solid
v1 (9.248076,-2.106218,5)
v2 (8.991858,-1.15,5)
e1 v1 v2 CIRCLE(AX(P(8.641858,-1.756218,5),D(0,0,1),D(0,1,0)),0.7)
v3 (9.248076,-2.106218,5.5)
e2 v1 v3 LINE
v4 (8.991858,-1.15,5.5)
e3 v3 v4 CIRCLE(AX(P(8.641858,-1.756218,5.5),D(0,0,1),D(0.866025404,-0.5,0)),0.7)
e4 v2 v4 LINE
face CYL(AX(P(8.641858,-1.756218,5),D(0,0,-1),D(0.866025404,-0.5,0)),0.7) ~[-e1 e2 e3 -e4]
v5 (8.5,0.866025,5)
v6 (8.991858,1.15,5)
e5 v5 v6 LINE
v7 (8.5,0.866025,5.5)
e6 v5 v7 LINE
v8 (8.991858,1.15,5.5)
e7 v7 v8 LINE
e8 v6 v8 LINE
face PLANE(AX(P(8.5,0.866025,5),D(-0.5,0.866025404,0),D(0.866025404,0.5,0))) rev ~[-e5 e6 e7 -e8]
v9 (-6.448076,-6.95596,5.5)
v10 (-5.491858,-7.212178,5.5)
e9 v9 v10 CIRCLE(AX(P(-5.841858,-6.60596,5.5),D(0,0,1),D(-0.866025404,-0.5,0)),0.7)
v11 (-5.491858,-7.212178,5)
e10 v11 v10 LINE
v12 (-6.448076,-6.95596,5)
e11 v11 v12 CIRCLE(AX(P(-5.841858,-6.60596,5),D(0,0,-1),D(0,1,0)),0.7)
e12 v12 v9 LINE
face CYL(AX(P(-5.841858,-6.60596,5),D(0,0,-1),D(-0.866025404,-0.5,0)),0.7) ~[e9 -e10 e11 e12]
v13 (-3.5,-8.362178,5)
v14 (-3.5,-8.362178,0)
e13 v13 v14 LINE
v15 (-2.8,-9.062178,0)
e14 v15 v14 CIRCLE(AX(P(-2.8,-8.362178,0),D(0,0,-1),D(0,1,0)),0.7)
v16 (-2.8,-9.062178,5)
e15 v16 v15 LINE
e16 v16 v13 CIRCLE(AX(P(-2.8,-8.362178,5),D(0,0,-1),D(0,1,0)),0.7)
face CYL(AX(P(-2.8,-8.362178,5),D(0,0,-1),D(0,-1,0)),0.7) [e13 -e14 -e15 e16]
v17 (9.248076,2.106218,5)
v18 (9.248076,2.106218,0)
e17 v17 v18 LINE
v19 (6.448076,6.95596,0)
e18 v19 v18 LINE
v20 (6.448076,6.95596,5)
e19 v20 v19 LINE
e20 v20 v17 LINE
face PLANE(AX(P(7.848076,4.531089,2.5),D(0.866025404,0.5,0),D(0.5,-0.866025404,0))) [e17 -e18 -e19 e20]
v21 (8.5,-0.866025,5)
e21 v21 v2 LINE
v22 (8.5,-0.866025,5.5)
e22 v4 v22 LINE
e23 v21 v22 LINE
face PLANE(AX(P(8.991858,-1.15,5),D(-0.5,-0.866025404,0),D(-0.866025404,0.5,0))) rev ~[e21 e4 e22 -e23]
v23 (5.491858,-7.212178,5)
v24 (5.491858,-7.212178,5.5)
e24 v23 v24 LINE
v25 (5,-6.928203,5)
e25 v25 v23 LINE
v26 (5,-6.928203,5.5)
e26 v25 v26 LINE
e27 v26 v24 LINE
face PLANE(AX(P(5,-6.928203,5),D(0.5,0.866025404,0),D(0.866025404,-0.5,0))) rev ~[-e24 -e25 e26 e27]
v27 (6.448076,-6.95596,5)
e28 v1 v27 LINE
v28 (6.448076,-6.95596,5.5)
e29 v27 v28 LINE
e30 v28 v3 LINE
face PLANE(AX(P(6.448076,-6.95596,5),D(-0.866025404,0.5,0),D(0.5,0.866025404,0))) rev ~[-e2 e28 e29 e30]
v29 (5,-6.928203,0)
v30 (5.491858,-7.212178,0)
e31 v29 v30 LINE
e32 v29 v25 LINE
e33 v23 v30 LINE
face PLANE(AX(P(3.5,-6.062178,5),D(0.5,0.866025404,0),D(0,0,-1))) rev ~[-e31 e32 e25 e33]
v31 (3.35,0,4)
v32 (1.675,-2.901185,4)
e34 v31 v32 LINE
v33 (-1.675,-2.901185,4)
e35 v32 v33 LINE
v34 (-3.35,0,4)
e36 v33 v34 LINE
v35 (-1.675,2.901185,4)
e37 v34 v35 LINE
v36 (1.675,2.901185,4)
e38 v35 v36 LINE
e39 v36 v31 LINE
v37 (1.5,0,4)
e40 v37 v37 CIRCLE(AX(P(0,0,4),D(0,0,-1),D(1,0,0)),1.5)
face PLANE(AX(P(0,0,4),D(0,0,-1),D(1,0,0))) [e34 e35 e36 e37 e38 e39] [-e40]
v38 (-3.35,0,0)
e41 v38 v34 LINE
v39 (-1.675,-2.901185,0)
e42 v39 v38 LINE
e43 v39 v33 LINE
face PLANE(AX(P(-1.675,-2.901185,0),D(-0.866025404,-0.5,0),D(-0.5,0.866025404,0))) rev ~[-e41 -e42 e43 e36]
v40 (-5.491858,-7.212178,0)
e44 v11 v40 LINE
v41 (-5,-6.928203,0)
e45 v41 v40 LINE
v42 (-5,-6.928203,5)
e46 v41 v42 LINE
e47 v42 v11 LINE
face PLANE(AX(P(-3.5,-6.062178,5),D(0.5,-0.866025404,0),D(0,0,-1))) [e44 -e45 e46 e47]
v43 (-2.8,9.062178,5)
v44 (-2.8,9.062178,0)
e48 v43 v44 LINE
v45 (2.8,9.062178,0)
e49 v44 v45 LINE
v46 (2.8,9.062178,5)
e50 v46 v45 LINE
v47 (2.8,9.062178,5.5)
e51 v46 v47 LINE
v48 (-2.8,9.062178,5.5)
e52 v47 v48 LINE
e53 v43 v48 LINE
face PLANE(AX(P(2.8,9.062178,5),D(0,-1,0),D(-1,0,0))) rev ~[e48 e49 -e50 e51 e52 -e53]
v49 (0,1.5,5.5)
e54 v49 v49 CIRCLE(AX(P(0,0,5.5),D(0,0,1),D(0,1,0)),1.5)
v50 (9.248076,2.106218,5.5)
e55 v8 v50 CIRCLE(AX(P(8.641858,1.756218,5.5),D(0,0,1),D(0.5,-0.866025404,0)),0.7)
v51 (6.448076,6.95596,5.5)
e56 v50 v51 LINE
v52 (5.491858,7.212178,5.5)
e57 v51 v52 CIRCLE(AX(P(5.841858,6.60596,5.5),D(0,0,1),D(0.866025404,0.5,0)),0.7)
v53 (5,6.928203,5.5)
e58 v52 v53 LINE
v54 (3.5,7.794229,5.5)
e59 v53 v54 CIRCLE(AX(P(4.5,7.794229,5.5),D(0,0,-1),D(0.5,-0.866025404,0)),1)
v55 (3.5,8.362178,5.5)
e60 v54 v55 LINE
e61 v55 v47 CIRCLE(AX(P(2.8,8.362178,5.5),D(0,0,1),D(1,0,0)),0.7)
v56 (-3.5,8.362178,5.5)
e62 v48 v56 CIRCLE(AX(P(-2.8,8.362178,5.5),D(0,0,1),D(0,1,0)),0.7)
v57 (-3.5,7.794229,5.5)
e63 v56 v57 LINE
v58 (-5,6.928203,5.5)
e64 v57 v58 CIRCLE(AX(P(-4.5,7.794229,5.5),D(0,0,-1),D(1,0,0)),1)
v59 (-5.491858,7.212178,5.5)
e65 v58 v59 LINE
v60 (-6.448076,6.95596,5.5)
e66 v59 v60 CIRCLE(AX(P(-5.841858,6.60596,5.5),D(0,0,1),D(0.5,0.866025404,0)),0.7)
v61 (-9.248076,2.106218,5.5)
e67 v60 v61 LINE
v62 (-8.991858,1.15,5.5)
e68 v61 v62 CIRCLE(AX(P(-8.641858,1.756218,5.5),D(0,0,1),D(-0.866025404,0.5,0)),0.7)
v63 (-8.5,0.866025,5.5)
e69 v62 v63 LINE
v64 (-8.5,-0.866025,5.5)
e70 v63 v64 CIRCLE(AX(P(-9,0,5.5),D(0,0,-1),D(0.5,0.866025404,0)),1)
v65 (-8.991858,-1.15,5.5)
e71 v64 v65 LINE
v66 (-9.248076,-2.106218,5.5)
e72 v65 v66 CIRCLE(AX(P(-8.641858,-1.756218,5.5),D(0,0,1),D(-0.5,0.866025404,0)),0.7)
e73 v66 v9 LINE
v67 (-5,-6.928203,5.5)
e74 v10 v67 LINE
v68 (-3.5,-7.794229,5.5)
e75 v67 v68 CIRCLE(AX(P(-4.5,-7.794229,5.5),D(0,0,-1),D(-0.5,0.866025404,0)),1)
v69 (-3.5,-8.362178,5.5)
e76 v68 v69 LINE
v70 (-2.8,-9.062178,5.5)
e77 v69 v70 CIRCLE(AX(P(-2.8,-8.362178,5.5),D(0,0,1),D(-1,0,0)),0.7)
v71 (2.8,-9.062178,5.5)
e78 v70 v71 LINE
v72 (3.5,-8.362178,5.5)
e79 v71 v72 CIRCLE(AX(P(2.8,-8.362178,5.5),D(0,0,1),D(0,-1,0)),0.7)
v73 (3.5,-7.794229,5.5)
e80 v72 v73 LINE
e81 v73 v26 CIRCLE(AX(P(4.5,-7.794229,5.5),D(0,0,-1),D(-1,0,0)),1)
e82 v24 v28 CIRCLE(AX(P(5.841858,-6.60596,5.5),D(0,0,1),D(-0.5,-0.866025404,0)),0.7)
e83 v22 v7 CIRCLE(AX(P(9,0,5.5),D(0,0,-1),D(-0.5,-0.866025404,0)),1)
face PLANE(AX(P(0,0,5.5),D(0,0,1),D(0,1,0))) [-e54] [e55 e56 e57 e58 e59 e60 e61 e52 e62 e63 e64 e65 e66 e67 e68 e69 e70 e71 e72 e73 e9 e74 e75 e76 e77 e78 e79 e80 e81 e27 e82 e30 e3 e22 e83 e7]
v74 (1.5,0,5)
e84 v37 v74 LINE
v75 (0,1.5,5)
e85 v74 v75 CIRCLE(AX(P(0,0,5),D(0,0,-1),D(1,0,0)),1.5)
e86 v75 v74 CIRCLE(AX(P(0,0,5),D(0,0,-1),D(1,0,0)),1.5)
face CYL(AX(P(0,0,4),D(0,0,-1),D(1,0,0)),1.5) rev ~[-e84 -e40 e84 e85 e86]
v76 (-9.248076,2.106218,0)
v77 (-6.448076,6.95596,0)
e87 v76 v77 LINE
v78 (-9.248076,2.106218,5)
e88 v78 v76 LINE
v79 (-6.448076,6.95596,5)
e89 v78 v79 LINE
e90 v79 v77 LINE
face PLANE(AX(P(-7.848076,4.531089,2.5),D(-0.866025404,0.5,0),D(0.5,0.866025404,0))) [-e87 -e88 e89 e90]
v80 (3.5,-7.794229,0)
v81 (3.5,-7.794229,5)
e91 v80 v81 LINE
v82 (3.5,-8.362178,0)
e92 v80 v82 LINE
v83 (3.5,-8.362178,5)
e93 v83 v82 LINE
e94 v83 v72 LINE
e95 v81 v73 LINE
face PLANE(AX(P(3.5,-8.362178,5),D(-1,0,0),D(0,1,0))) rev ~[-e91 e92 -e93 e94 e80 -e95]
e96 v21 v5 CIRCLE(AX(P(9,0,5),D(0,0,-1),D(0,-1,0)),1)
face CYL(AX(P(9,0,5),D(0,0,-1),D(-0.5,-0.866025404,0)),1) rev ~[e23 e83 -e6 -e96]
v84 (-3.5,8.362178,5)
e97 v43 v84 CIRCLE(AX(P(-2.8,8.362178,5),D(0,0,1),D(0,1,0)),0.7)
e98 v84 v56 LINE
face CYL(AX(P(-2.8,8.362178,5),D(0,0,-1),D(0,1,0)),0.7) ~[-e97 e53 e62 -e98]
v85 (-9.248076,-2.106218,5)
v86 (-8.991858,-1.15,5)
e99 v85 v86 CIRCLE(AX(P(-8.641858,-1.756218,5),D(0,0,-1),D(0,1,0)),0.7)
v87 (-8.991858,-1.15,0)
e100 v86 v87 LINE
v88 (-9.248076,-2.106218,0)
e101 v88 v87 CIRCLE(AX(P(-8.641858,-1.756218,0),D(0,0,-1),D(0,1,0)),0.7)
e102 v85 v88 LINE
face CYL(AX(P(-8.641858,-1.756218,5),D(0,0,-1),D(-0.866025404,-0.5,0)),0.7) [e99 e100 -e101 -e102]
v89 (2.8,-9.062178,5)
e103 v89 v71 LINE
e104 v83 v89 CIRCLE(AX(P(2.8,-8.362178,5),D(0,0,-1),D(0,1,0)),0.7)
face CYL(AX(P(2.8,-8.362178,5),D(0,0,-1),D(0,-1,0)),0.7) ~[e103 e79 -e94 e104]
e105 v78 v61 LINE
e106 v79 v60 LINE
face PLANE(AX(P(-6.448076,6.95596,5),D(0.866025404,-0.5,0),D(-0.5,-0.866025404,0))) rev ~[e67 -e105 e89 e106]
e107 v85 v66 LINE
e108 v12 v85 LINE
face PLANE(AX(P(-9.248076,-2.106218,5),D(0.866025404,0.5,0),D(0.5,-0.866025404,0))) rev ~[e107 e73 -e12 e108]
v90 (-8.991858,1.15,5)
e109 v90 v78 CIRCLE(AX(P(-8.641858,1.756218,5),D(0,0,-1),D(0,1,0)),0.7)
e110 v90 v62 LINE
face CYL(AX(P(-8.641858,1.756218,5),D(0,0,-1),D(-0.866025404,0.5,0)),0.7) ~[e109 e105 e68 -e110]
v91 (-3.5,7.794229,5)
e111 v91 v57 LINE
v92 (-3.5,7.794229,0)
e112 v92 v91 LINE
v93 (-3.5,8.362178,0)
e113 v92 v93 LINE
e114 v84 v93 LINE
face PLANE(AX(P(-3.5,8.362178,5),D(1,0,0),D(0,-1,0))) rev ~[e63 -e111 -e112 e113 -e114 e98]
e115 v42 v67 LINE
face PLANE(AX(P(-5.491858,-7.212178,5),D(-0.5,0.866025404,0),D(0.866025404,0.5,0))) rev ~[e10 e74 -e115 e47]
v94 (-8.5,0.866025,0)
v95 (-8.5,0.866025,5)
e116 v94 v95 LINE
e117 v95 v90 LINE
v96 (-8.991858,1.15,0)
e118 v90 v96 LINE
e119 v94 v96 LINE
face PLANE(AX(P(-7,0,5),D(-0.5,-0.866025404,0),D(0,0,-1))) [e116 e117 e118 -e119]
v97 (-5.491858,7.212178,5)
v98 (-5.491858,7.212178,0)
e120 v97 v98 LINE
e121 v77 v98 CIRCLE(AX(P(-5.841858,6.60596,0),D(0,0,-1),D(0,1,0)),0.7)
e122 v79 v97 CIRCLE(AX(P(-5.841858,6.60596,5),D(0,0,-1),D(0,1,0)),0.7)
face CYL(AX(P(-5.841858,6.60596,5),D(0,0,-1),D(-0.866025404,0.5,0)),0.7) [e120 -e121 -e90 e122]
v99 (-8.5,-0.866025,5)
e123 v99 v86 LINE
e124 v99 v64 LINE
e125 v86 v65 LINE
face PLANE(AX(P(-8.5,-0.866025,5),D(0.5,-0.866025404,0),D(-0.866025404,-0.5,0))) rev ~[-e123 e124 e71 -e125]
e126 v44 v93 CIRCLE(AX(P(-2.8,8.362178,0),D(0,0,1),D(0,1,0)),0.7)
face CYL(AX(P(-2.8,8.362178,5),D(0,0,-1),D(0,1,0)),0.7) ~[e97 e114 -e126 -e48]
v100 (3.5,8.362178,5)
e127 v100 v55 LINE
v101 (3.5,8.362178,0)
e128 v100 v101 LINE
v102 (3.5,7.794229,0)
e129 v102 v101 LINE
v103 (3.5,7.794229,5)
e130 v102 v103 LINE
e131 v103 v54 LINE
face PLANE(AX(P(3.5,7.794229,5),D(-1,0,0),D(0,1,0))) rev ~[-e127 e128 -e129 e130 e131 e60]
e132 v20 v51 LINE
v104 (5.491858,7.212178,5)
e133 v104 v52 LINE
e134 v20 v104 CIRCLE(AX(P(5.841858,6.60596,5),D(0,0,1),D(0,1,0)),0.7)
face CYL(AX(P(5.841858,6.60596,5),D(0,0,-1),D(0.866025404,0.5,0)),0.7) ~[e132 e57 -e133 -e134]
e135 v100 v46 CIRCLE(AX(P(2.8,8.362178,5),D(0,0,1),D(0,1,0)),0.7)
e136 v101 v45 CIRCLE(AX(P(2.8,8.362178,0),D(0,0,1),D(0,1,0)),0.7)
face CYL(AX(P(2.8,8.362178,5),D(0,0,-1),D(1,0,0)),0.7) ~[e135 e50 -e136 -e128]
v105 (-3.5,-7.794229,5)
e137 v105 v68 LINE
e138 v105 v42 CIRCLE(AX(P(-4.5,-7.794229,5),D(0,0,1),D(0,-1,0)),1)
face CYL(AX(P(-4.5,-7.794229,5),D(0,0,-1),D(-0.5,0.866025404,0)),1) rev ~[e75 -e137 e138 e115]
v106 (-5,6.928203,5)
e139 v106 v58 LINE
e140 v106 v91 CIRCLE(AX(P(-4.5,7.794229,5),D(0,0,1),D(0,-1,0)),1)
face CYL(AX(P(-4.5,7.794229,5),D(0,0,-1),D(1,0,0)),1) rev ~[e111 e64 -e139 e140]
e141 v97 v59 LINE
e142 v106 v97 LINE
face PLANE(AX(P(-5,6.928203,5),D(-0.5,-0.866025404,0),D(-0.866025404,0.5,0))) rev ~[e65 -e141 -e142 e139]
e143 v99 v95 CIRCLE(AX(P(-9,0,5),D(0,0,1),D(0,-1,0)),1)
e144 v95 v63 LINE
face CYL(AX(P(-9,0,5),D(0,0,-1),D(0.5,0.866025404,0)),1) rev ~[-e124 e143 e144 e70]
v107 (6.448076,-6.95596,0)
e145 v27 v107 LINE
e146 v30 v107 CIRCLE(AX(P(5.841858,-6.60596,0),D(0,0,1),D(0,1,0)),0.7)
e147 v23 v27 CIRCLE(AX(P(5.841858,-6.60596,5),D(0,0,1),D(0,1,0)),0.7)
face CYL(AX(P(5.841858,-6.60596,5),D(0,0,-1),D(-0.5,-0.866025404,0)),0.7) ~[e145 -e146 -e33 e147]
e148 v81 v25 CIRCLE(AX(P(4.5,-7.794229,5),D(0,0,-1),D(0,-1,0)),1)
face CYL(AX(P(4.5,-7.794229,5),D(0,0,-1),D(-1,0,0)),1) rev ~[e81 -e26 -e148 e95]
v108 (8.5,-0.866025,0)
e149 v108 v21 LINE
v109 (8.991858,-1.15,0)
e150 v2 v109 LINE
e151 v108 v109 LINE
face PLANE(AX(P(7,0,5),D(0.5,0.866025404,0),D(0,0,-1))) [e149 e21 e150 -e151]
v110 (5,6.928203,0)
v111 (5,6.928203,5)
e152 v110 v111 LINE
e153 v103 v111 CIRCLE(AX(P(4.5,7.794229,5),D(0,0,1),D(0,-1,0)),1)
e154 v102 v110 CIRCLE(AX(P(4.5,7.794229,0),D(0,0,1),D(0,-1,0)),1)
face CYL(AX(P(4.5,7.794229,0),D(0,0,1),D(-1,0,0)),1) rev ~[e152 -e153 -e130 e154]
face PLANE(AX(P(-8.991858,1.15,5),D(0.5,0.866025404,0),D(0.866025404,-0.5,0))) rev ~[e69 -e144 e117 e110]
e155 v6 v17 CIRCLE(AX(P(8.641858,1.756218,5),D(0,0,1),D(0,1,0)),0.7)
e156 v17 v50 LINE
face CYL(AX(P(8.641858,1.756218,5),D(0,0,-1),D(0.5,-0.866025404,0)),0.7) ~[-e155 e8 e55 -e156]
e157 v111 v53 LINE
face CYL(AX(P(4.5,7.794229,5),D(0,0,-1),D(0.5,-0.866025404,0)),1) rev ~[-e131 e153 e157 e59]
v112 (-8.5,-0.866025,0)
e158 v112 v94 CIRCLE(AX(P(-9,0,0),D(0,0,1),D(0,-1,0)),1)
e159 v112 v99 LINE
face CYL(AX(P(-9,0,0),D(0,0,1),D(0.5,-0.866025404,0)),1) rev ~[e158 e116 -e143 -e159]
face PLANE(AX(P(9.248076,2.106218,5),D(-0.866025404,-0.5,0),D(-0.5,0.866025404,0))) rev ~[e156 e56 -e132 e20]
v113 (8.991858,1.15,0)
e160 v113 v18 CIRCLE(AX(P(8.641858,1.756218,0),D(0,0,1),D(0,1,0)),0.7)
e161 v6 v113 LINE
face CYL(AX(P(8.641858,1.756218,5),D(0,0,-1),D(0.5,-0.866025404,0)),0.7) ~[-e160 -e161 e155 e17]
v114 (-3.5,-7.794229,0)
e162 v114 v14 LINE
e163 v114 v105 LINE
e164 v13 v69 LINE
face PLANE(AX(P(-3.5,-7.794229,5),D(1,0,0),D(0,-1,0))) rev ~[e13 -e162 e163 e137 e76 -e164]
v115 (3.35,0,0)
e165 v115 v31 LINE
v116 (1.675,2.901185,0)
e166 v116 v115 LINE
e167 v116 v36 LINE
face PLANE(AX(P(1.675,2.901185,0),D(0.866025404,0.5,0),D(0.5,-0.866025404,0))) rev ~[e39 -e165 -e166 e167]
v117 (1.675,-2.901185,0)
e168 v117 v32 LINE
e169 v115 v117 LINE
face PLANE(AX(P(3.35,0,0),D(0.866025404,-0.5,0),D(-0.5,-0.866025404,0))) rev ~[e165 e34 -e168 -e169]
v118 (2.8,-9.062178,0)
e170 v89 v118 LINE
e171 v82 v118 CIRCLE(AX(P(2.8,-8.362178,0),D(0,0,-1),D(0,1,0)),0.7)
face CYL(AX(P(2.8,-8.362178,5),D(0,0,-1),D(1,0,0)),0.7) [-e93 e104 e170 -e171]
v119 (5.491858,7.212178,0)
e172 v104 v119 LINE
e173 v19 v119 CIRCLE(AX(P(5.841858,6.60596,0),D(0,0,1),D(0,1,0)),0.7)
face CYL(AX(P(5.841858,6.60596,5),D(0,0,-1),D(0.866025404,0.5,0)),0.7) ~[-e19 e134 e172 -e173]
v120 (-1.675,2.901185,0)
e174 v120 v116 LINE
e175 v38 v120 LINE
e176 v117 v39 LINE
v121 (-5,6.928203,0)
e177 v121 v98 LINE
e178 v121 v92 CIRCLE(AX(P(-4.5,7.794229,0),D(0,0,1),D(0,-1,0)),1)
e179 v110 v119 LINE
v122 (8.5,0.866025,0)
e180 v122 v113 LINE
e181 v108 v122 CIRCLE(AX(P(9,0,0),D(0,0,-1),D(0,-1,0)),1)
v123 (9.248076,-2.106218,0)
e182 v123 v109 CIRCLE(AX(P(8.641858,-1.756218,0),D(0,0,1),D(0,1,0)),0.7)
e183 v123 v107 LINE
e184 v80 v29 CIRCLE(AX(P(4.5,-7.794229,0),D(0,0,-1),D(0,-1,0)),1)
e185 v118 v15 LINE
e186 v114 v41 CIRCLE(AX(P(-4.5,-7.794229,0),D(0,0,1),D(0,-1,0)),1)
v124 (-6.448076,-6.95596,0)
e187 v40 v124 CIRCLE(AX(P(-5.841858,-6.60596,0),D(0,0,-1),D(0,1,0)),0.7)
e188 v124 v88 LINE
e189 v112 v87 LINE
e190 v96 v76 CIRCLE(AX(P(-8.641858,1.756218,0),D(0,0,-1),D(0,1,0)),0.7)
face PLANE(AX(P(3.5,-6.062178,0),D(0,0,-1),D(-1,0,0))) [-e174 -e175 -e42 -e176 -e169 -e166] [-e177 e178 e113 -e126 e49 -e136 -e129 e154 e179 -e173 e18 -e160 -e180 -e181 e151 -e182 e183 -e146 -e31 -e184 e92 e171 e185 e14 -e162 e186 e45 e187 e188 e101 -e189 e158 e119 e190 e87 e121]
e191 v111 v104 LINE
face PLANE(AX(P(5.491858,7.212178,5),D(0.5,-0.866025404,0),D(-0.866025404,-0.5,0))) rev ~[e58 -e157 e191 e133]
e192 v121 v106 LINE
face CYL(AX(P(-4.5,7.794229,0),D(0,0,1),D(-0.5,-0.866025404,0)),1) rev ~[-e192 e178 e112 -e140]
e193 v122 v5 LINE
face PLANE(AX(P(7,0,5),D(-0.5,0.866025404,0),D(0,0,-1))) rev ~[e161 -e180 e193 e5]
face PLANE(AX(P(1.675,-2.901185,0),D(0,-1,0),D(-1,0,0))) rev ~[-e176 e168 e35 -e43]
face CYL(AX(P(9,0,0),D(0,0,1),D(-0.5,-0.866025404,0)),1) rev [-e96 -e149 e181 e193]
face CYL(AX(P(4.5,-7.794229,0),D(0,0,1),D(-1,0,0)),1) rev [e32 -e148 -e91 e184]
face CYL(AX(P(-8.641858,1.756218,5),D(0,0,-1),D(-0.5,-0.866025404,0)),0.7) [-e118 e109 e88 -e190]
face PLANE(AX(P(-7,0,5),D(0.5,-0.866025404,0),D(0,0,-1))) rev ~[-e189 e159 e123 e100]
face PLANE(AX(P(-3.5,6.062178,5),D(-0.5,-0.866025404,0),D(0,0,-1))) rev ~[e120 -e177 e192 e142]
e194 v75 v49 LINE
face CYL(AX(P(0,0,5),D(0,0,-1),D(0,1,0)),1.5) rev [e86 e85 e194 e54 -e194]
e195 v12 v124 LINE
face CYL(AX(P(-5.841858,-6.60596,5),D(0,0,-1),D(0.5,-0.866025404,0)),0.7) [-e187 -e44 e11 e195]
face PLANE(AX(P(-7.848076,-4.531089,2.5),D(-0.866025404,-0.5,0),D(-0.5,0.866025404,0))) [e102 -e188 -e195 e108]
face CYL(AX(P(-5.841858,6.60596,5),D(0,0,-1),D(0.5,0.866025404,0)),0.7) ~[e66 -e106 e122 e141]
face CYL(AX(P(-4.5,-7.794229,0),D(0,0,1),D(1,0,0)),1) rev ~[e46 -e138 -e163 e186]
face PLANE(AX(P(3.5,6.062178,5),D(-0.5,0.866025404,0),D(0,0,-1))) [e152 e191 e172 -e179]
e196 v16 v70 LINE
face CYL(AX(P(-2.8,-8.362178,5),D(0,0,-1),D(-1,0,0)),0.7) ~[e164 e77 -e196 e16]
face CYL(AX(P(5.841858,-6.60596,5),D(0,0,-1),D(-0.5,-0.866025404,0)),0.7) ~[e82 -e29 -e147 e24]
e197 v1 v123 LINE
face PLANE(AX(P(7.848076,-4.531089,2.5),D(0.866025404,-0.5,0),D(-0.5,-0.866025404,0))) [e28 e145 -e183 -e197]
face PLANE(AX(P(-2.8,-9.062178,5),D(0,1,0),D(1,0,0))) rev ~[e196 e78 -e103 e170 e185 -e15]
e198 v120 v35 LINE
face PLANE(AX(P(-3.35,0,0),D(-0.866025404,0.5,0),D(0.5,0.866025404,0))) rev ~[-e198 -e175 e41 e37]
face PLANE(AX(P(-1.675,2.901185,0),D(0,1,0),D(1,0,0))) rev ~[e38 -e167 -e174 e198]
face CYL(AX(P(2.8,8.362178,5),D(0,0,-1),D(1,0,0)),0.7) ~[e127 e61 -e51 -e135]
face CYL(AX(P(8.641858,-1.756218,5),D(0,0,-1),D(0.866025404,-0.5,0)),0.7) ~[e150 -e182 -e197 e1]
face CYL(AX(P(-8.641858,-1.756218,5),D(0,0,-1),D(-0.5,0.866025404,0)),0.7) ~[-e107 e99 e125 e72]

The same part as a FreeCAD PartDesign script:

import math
import FreeCAD as App
import Part
import Sketcher

V = App.Vector
Q = App.Units.Quantity


def edges_at(feature, points):
    """Names of the edges that pass closest to the given points."""
    edges = feature.Shape.Edges
    near = lambda p: min(range(len(edges)), key=lambda i: edges[i].distToShape(Part.Vertex(*p))[0])
    return sorted({f"Edge{near(p) + 1}" for p in points})

doc = App.newDocument("Part")
body = doc.addObject("PartDesign::Body", "Body")

# Sketch on XY plane
sketch1 = body.newObject("Sketcher::SketchObject", "Sketch")
sketch1.AttachmentSupport = (doc.getObject("XY_Plane"), [""])
sketch1.MapMode = "FlatFace"
sketch1.addGeometry(Part.LineSegment(V(7, 0, 0), V(4, 6, 0)), False)
sketch1.addGeometry(Part.LineSegment(V(4, 6, 0), V(-4, 6, 0)), False)
sketch1.addGeometry(Part.LineSegment(V(-4, 6, 0), V(-7, 0, 0)), False)
sketch1.addGeometry(Part.LineSegment(V(-7, 0, 0), V(-4, -6, 0)), False)
sketch1.addGeometry(Part.LineSegment(V(-4, -6, 0), V(4, -6, 0)), False)
sketch1.addGeometry(Part.LineSegment(V(4, -6, 0), V(7, 0, 0)), False)
sketch1.addConstraint(Sketcher.Constraint("Coincident", 0, 2, 1, 1))
sketch1.addConstraint(Sketcher.Constraint("Coincident", 1, 2, 2, 1))
sketch1.addConstraint(Sketcher.Constraint("Coincident", 2, 2, 3, 1))
sketch1.addConstraint(Sketcher.Constraint("Coincident", 3, 2, 4, 1))
sketch1.addConstraint(Sketcher.Constraint("Coincident", 4, 2, 5, 1))
sketch1.addConstraint(Sketcher.Constraint("Coincident", 5, 2, 0, 1))
sketch1.addConstraint(Sketcher.Constraint("Horizontal", 1))
sketch1.addConstraint(Sketcher.Constraint("Horizontal", 4))
sketch1.addConstraint(Sketcher.Constraint("Symmetric", 0, 2, 3, 2, -1, 1))
sketch1.addConstraint(Sketcher.Constraint("Symmetric", 2, 2, 5, 2, -1, 1))
sketch1.addConstraint(Sketcher.Constraint("PointOnObject", 2, 2, -1))
sketch1.addConstraint(Sketcher.Constraint("Parallel", 2, 5))
sketch1.addConstraint(Sketcher.Constraint("Vertical", 1, 2, 3, 2))
sketch1.addConstraint(Sketcher.Constraint("DistanceX", 1, 2, 1, 1, 7.0))
sketch1.addConstraint(Sketcher.Constraint("Angle", 0, Q("120 deg")))
sketch1.addConstraint(Sketcher.Constraint("Distance", 0, 7.0))
pad1 = body.newObject("PartDesign::Pad", "Pad")
pad1.Profile = sketch1
pad1.Length = 5

# Sketch on XY plane
sketch2 = body.newObject("Sketcher::SketchObject", "Sketch001")
sketch2.AttachmentSupport = (doc.getObject("XY_Plane"), [""])
sketch2.MapMode = "FlatFace"
sketch2.addGeometry(Part.LineSegment(V(3.4, 0, 0), V(1.7, -2.9, 0)), False)
sketch2.addGeometry(Part.LineSegment(V(1.7, -2.9, 0), V(-1.7, -2.9, 0)), False)
sketch2.addGeometry(Part.LineSegment(V(-1.7, -2.9, 0), V(-3.4, 0, 0)), False)
sketch2.addGeometry(Part.LineSegment(V(-3.4, 0, 0), V(-1.7, 2.9, 0)), False)
sketch2.addGeometry(Part.LineSegment(V(-1.7, 2.9, 0), V(1.7, 2.9, 0)), False)
sketch2.addGeometry(Part.LineSegment(V(1.7, 2.9, 0), V(3.4, 0, 0)), False)
sketch2.addConstraint(Sketcher.Constraint("Coincident", 0, 2, 1, 1))
sketch2.addConstraint(Sketcher.Constraint("Coincident", 1, 2, 2, 1))
sketch2.addConstraint(Sketcher.Constraint("Coincident", 2, 2, 3, 1))
sketch2.addConstraint(Sketcher.Constraint("Coincident", 3, 2, 4, 1))
sketch2.addConstraint(Sketcher.Constraint("Coincident", 4, 2, 5, 1))
sketch2.addConstraint(Sketcher.Constraint("Coincident", 5, 2, 0, 1))
sketch2.addConstraint(Sketcher.Constraint("Horizontal", 1))
sketch2.addConstraint(Sketcher.Constraint("Horizontal", 4))
sketch2.addConstraint(Sketcher.Constraint("Symmetric", 0, 2, 3, 2, -1, 1))
sketch2.addConstraint(Sketcher.Constraint("Symmetric", 2, 2, 5, 2, -1, 1))
sketch2.addConstraint(Sketcher.Constraint("PointOnObject", 2, 2, -1))
sketch2.addConstraint(Sketcher.Constraint("Parallel", 2, 5))
sketch2.addConstraint(Sketcher.Constraint("Vertical", 1, 2, 3, 2))
sketch2.addConstraint(Sketcher.Constraint("Angle", 0, Q("-120 deg")))
sketch2.addConstraint(Sketcher.Constraint("DistanceX", 1, 2, 1, 1, 3.35))
sketch2.addConstraint(Sketcher.Constraint("DistanceX", 2, 2, 5, 2, 6.7))
pocket1 = body.newObject("PartDesign::Pocket", "Pocket")
pocket1.Profile = sketch2
pocket1.Length = 4
pocket1.Reversed = True

# Sketch on an angled plane
sketch3 = body.newObject("Sketcher::SketchObject", "Sketch002")
sketch3.Placement = App.Placement(V(5.25, 3.031089, 2.5), App.Rotation(V(0.5, -0.866025404, 0), V(0, 0, -1), V(0.866025404, 0.5, 0), "ZXY"))
sketch3.addGeometry(Part.LineSegment(V(-4, 3, 0), V(-4, -3, 0)), False)
sketch3.addGeometry(Part.LineSegment(V(-4, -3, 0), V(4, -3, 0)), False)
sketch3.addGeometry(Part.LineSegment(V(4, -3, 0), V(4, 3, 0)), False)
sketch3.addGeometry(Part.LineSegment(V(4, 3, 0), V(-4, 3, 0)), False)
sketch3.addConstraint(Sketcher.Constraint("Coincident", 0, 2, 1, 1))
sketch3.addConstraint(Sketcher.Constraint("Coincident", 1, 2, 2, 1))
sketch3.addConstraint(Sketcher.Constraint("Coincident", 2, 2, 3, 1))
sketch3.addConstraint(Sketcher.Constraint("Coincident", 3, 2, 0, 1))
sketch3.addConstraint(Sketcher.Constraint("Vertical", 0))
sketch3.addConstraint(Sketcher.Constraint("Horizontal", 1))
sketch3.addConstraint(Sketcher.Constraint("Vertical", 2))
sketch3.addConstraint(Sketcher.Constraint("Horizontal", 3))
sketch3.addConstraint(Sketcher.Constraint("Symmetric", 0, 2, 2, 2, -1, 1))
sketch3.addConstraint(Sketcher.Constraint("DistanceX", 1, 1, 1, 2, 7.0))
sketch3.addConstraint(Sketcher.Constraint("DistanceY", 0, 2, 0, 1, 5.0))
pad2 = body.newObject("PartDesign::Pad", "Pad001")
pad2.Profile = sketch3
pad2.Length = 3

# Sketch on an angled plane
sketch4 = body.newObject("Sketcher::SketchObject", "Sketch003")
sketch4.Placement = App.Placement(V(-5.25, -3.031089, 2.5), App.Rotation(V(-0.5, 0.866025404, 0), V(0, 0, -1), V(-0.866025404, -0.5, 0), "ZXY"))
sketch4.addGeometry(Part.LineSegment(V(-4, 3, 0), V(-4, -3, 0)), False)
sketch4.addGeometry(Part.LineSegment(V(-4, -3, 0), V(4, -3, 0)), False)
sketch4.addGeometry(Part.LineSegment(V(4, -3, 0), V(4, 3, 0)), False)
sketch4.addGeometry(Part.LineSegment(V(4, 3, 0), V(-4, 3, 0)), False)
sketch4.addConstraint(Sketcher.Constraint("Coincident", 0, 2, 1, 1))
sketch4.addConstraint(Sketcher.Constraint("Coincident", 1, 2, 2, 1))
sketch4.addConstraint(Sketcher.Constraint("Coincident", 2, 2, 3, 1))
sketch4.addConstraint(Sketcher.Constraint("Coincident", 3, 2, 0, 1))
sketch4.addConstraint(Sketcher.Constraint("Vertical", 0))
sketch4.addConstraint(Sketcher.Constraint("Horizontal", 1))
sketch4.addConstraint(Sketcher.Constraint("Vertical", 2))
sketch4.addConstraint(Sketcher.Constraint("Horizontal", 3))
sketch4.addConstraint(Sketcher.Constraint("Symmetric", 0, 2, 2, 2, -1, 1))
sketch4.addConstraint(Sketcher.Constraint("DistanceX", 1, 1, 1, 2, 7.0))
sketch4.addConstraint(Sketcher.Constraint("DistanceY", 0, 2, 0, 1, 5.0))
pad3 = body.newObject("PartDesign::Pad", "Pad002")
pad3.Profile = sketch4
pad3.Length = 3

# Sketch on an angled plane
sketch5 = body.newObject("Sketcher::SketchObject", "Sketch004")
sketch5.Placement = App.Placement(V(-5.25, 3.031089, 2.5), App.Rotation(V(0.5, 0.866025404, 0), V(0, 0, -1), V(-0.866025404, 0.5, 0), "ZXY"))
sketch5.addGeometry(Part.LineSegment(V(-4, 3, 0), V(-4, -3, 0)), False)
sketch5.addGeometry(Part.LineSegment(V(-4, -3, 0), V(4, -3, 0)), False)
sketch5.addGeometry(Part.LineSegment(V(4, -3, 0), V(4, 3, 0)), False)
sketch5.addGeometry(Part.LineSegment(V(4, 3, 0), V(-4, 3, 0)), False)
sketch5.addConstraint(Sketcher.Constraint("Coincident", 0, 2, 1, 1))
sketch5.addConstraint(Sketcher.Constraint("Coincident", 1, 2, 2, 1))
sketch5.addConstraint(Sketcher.Constraint("Coincident", 2, 2, 3, 1))
sketch5.addConstraint(Sketcher.Constraint("Coincident", 3, 2, 0, 1))
sketch5.addConstraint(Sketcher.Constraint("Vertical", 0))
sketch5.addConstraint(Sketcher.Constraint("Horizontal", 1))
sketch5.addConstraint(Sketcher.Constraint("Vertical", 2))
sketch5.addConstraint(Sketcher.Constraint("Horizontal", 3))
sketch5.addConstraint(Sketcher.Constraint("Symmetric", 0, 2, 2, 2, -1, 1))
sketch5.addConstraint(Sketcher.Constraint("DistanceX", 1, 1, 1, 2, 7.0))
sketch5.addConstraint(Sketcher.Constraint("DistanceY", 0, 2, 0, 1, 5.0))
pad4 = body.newObject("PartDesign::Pad", "Pad003")
pad4.Profile = sketch5
pad4.Length = 3

# Sketch on XZ plane
sketch6 = body.newObject("Sketcher::SketchObject", "Sketch005")
sketch6.AttachmentSupport = (doc.getObject("XZ_Plane"), [""])
sketch6.MapMode = "FlatFace"
sketch6.AttachmentOffset = App.Placement(V(0, 0, -6.062178), App.Rotation())
sketch6.addGeometry(Part.LineSegment(V(-4, 0, 0), V(-4, 5, 0)), False)
sketch6.addGeometry(Part.LineSegment(V(-4, 5, 0), V(4, 5, 0)), False)
sketch6.addGeometry(Part.LineSegment(V(4, 5, 0), V(4, 0, 0)), False)
sketch6.addGeometry(Part.LineSegment(V(4, 0, 0), V(-4, 0, 0)), False)
sketch6.addConstraint(Sketcher.Constraint("Coincident", 0, 2, 1, 1))
sketch6.addConstraint(Sketcher.Constraint("Coincident", 1, 2, 2, 1))
sketch6.addConstraint(Sketcher.Constraint("Coincident", 2, 2, 3, 1))
sketch6.addConstraint(Sketcher.Constraint("Coincident", 3, 2, 0, 1))
sketch6.addConstraint(Sketcher.Constraint("Vertical", 0))
sketch6.addConstraint(Sketcher.Constraint("Horizontal", 1))
sketch6.addConstraint(Sketcher.Constraint("Vertical", 2))
sketch6.addConstraint(Sketcher.Constraint("Horizontal", 3))
sketch6.addConstraint(Sketcher.Constraint("Symmetric", 2, 2, 3, 2, -1, 1))
sketch6.addConstraint(Sketcher.Constraint("DistanceX", 1, 1, 1, 2, 7.0))
sketch6.addConstraint(Sketcher.Constraint("DistanceY", 0, 1, 0, 2, 5.0))
pad5 = body.newObject("PartDesign::Pad", "Pad004")
pad5.Profile = sketch6
pad5.Length = 3
pad5.Reversed = True

# Sketch on an angled plane
sketch7 = body.newObject("Sketcher::SketchObject", "Sketch006")
sketch7.Placement = App.Placement(V(5.25, -3.031089, 2.5), App.Rotation(V(-0.5, -0.866025404, 0), V(0, 0, -1), V(0.866025404, -0.5, 0), "ZXY"))
sketch7.addGeometry(Part.LineSegment(V(-4, 3, 0), V(-4, -3, 0)), False)
sketch7.addGeometry(Part.LineSegment(V(-4, -3, 0), V(4, -3, 0)), False)
sketch7.addGeometry(Part.LineSegment(V(4, -3, 0), V(4, 3, 0)), False)
sketch7.addGeometry(Part.LineSegment(V(4, 3, 0), V(-4, 3, 0)), False)
sketch7.addConstraint(Sketcher.Constraint("Coincident", 0, 2, 1, 1))
sketch7.addConstraint(Sketcher.Constraint("Coincident", 1, 2, 2, 1))
sketch7.addConstraint(Sketcher.Constraint("Coincident", 2, 2, 3, 1))
sketch7.addConstraint(Sketcher.Constraint("Coincident", 3, 2, 0, 1))
sketch7.addConstraint(Sketcher.Constraint("Vertical", 0))
sketch7.addConstraint(Sketcher.Constraint("Horizontal", 1))
sketch7.addConstraint(Sketcher.Constraint("Vertical", 2))
sketch7.addConstraint(Sketcher.Constraint("Horizontal", 3))
sketch7.addConstraint(Sketcher.Constraint("Symmetric", 0, 2, 2, 2, -1, 1))
sketch7.addConstraint(Sketcher.Constraint("DistanceX", 1, 1, 1, 2, 7.0))
sketch7.addConstraint(Sketcher.Constraint("DistanceY", 0, 2, 0, 1, 5.0))
pad6 = body.newObject("PartDesign::Pad", "Pad005")
pad6.Profile = sketch7
pad6.Length = 3

# Sketch on XZ plane
sketch8 = body.newObject("Sketcher::SketchObject", "Sketch007")
sketch8.AttachmentSupport = (doc.getObject("XZ_Plane"), [""])
sketch8.MapMode = "FlatFace"
sketch8.AttachmentOffset = App.Placement(V(0, 0, 6.062178), App.Rotation())
sketch8.addGeometry(Part.LineSegment(V(4, 0, 0), V(4, 5, 0)), False)
sketch8.addGeometry(Part.LineSegment(V(4, 5, 0), V(-4, 5, 0)), False)
sketch8.addGeometry(Part.LineSegment(V(-4, 5, 0), V(-4, 0, 0)), False)
sketch8.addGeometry(Part.LineSegment(V(-4, 0, 0), V(4, 0, 0)), False)
sketch8.addConstraint(Sketcher.Constraint("Coincident", 0, 2, 1, 1))
sketch8.addConstraint(Sketcher.Constraint("Coincident", 1, 2, 2, 1))
sketch8.addConstraint(Sketcher.Constraint("Coincident", 2, 2, 3, 1))
sketch8.addConstraint(Sketcher.Constraint("Coincident", 3, 2, 0, 1))
sketch8.addConstraint(Sketcher.Constraint("Vertical", 0))
sketch8.addConstraint(Sketcher.Constraint("Horizontal", 1))
sketch8.addConstraint(Sketcher.Constraint("Vertical", 2))
sketch8.addConstraint(Sketcher.Constraint("Horizontal", 3))
sketch8.addConstraint(Sketcher.Constraint("Symmetric", 2, 2, 3, 2, -1, 1))
sketch8.addConstraint(Sketcher.Constraint("DistanceX", 1, 2, 1, 1, 7.0))
sketch8.addConstraint(Sketcher.Constraint("DistanceY", 0, 1, 0, 2, 5.0))
pad7 = body.newObject("PartDesign::Pad", "Pad006")
pad7.Profile = sketch8
pad7.Length = 3
doc.recompute()

fillet = body.newObject("PartDesign::Fillet", "Fillet")
fillet.Base = (pad7, edges_at(pad7, [
    (3.5, -6.062, 2.5),
    (-3.5, -6.062, 2.5),
    (-7, 0, 2.5),
    (-3.5, 6.062, 2.5),
    (3.5, 6.062, 2.5),
    (7, 0, 2.5),
]))
fillet.Radius = 1
doc.recompute()

fillet2 = body.newObject("PartDesign::Fillet", "Fillet001")
fillet2.Base = (fillet, edges_at(fillet, [
    (-6.098, -7.562, 2.5),
    (-9.598, -1.5, 2.5),
    (-9.598, 1.5, 2.5),
    (-6.098, 7.562, 2.5),
    (-3.5, 9.062, 2.5),
    (3.5, 9.062, 2.5),
    (6.098, 7.562, 2.5),
    (9.598, 1.5, 2.5),
    (9.598, -1.5, 2.5),
    (6.098, -7.562, 2.5),
    (3.5, -9.062, 2.5),
    (-3.5, -9.062, 2.5),
]))
fillet2.Radius = 0.7

# Sketch on XY plane
sketch9 = body.newObject("Sketcher::SketchObject", "Sketch008")
sketch9.AttachmentSupport = (doc.getObject("XY_Plane"), [""])
sketch9.MapMode = "FlatFace"
sketch9.AttachmentOffset = App.Placement(V(0, 0, 4), App.Rotation())
sketch9.addGeometry(Part.Circle(V(0, 0, 0), V(0, 0, 1), 1.5), False)
sketch9.addConstraint(Sketcher.Constraint("Coincident", 0, 3, -1, 1))
sketch9.addConstraint(Sketcher.Constraint("Diameter", 0, 3.0))
pocket2 = body.newObject("PartDesign::Pocket", "Pocket001")
pocket2.Profile = sketch9
pocket2.Length = 5
pocket2.Reversed = True

# Sketch on XY plane
sketch10 = body.newObject("Sketcher::SketchObject", "Sketch009")
sketch10.AttachmentSupport = (doc.getObject("XY_Plane"), [""])
sketch10.MapMode = "FlatFace"
sketch10.AttachmentOffset = App.Placement(V(0, 0, 5), App.Rotation())
sketch10.addGeometry(Part.LineSegment(V(-5, 6.9, 0), V(-5.5, 7.2, 0)), False)
sketch10.addGeometry(Part.ArcOfCircle(Part.Circle(V(-5.8, 6.6, 0), V(0, 0, 1), 0.7), math.radians(60), math.radians(150)), False)
sketch10.addGeometry(Part.LineSegment(V(-6.4, 7, 0), V(-9.2, 2.1, 0)), False)
sketch10.addGeometry(Part.ArcOfCircle(Part.Circle(V(-8.6, 1.8, 0), V(0, 0, 1), 0.7), math.radians(150), math.radians(240)), False)
sketch10.addGeometry(Part.LineSegment(V(-9, 1.1, 0), V(-8.5, 0.9, 0)), False)
sketch10.addGeometry(Part.ArcOfCircle(Part.Circle(V(-9, 0, 0), V(0, 0, 1), 1), math.radians(-60), math.radians(60)), False)
sketch10.addGeometry(Part.LineSegment(V(-8.5, -0.9, 0), V(-9, -1.1, 0)), False)
sketch10.addGeometry(Part.ArcOfCircle(Part.Circle(V(-8.6, -1.8, 0), V(0, 0, 1), 0.7), math.radians(120), math.radians(210)), False)
sketch10.addGeometry(Part.LineSegment(V(-9.2, -2.1, 0), V(-6.4, -7, 0)), False)
sketch10.addGeometry(Part.ArcOfCircle(Part.Circle(V(-5.8, -6.6, 0), V(0, 0, 1), 0.7), math.radians(-150), math.radians(-60)), False)
sketch10.addGeometry(Part.LineSegment(V(-5.5, -7.2, 0), V(-5, -6.9, 0)), False)
sketch10.addGeometry(Part.ArcOfCircle(Part.Circle(V(-4.5, -7.8, 0), V(0, 0, 1), 1), math.radians(0), math.radians(120)), False)
sketch10.addGeometry(Part.LineSegment(V(-3.5, -7.8, 0), V(-3.5, -8.4, 0)), False)
sketch10.addGeometry(Part.ArcOfCircle(Part.Circle(V(-2.8, -8.4, 0), V(0, 0, 1), 0.7), math.radians(180), math.radians(270)), False)
sketch10.addGeometry(Part.LineSegment(V(-2.8, -9.1, 0), V(2.8, -9.1, 0)), False)
sketch10.addGeometry(Part.ArcOfCircle(Part.Circle(V(2.8, -8.4, 0), V(0, 0, 1), 0.7), math.radians(-90), math.radians(0)), False)
sketch10.addGeometry(Part.LineSegment(V(3.5, -8.4, 0), V(3.5, -7.8, 0)), False)
sketch10.addGeometry(Part.ArcOfCircle(Part.Circle(V(4.5, -7.8, 0), V(0, 0, 1), 1), math.radians(60), math.radians(180)), False)
sketch10.addGeometry(Part.LineSegment(V(5, -6.9, 0), V(5.5, -7.2, 0)), False)
sketch10.addGeometry(Part.ArcOfCircle(Part.Circle(V(5.8, -6.6, 0), V(0, 0, 1), 0.7), math.radians(-120), math.radians(-30)), False)
sketch10.addGeometry(Part.LineSegment(V(6.4, -7, 0), V(9.2, -2.1, 0)), False)
sketch10.addGeometry(Part.ArcOfCircle(Part.Circle(V(8.6, -1.8, 0), V(0, 0, 1), 0.7), math.radians(-30), math.radians(60)), False)
sketch10.addGeometry(Part.LineSegment(V(9, -1.1, 0), V(8.5, -0.9, 0)), False)
sketch10.addGeometry(Part.ArcOfCircle(Part.Circle(V(9, 0, 0), V(0, 0, 1), 1), math.radians(120), math.radians(240)), False)
sketch10.addGeometry(Part.LineSegment(V(8.5, 0.9, 0), V(9, 1.1, 0)), False)
sketch10.addGeometry(Part.ArcOfCircle(Part.Circle(V(8.6, 1.8, 0), V(0, 0, 1), 0.7), math.radians(-60), math.radians(30)), False)
sketch10.addGeometry(Part.LineSegment(V(9.2, 2.1, 0), V(6.4, 7, 0)), False)
sketch10.addGeometry(Part.ArcOfCircle(Part.Circle(V(5.8, 6.6, 0), V(0, 0, 1), 0.7), math.radians(30), math.radians(120)), False)
sketch10.addGeometry(Part.LineSegment(V(5.5, 7.2, 0), V(5, 6.9, 0)), False)
sketch10.addGeometry(Part.ArcOfCircle(Part.Circle(V(4.5, 7.8, 0), V(0, 0, 1), 1), math.radians(180), math.radians(300)), False)
sketch10.addGeometry(Part.LineSegment(V(3.5, 7.8, 0), V(3.5, 8.4, 0)), False)
sketch10.addGeometry(Part.ArcOfCircle(Part.Circle(V(2.8, 8.4, 0), V(0, 0, 1), 0.7), math.radians(0), math.radians(90)), False)
sketch10.addGeometry(Part.LineSegment(V(2.8, 9.1, 0), V(-2.8, 9.1, 0)), False)
sketch10.addGeometry(Part.ArcOfCircle(Part.Circle(V(-2.8, 8.4, 0), V(0, 0, 1), 0.7), math.radians(90), math.radians(180)), False)
sketch10.addGeometry(Part.LineSegment(V(-3.5, 8.4, 0), V(-3.5, 7.8, 0)), False)
sketch10.addGeometry(Part.ArcOfCircle(Part.Circle(V(-4.5, 7.8, 0), V(0, 0, 1), 1), math.radians(-120), math.radians(0)), False)
sketch10.addGeometry(Part.Circle(V(0, 0, 0), V(0, 0, 1), 1.5), False)
sketch10.addConstraint(Sketcher.Constraint("Tangent", 0, 2, 1, 1))
sketch10.addConstraint(Sketcher.Constraint("Tangent", 1, 2, 2, 1))
sketch10.addConstraint(Sketcher.Constraint("Tangent", 2, 2, 3, 1))
sketch10.addConstraint(Sketcher.Constraint("Tangent", 3, 2, 4, 1))
sketch10.addConstraint(Sketcher.Constraint("Tangent", 4, 2, 5, 2))
sketch10.addConstraint(Sketcher.Constraint("Tangent", 5, 1, 6, 1))
sketch10.addConstraint(Sketcher.Constraint("Tangent", 6, 2, 7, 1))
sketch10.addConstraint(Sketcher.Constraint("Tangent", 7, 2, 8, 1))
sketch10.addConstraint(Sketcher.Constraint("Tangent", 8, 2, 9, 1))
sketch10.addConstraint(Sketcher.Constraint("Tangent", 9, 2, 10, 1))
sketch10.addConstraint(Sketcher.Constraint("Tangent", 10, 2, 11, 2))
sketch10.addConstraint(Sketcher.Constraint("Tangent", 11, 1, 12, 1))
sketch10.addConstraint(Sketcher.Constraint("Tangent", 12, 2, 13, 1))
sketch10.addConstraint(Sketcher.Constraint("Tangent", 13, 2, 14, 1))
sketch10.addConstraint(Sketcher.Constraint("Tangent", 14, 2, 15, 1))
sketch10.addConstraint(Sketcher.Constraint("Tangent", 15, 2, 16, 1))
sketch10.addConstraint(Sketcher.Constraint("Tangent", 16, 2, 17, 2))
sketch10.addConstraint(Sketcher.Constraint("Tangent", 17, 1, 18, 1))
sketch10.addConstraint(Sketcher.Constraint("Tangent", 18, 2, 19, 1))
sketch10.addConstraint(Sketcher.Constraint("Tangent", 19, 2, 20, 1))
sketch10.addConstraint(Sketcher.Constraint("Tangent", 20, 2, 21, 1))
sketch10.addConstraint(Sketcher.Constraint("Tangent", 21, 2, 22, 1))
sketch10.addConstraint(Sketcher.Constraint("Tangent", 22, 2, 23, 2))
sketch10.addConstraint(Sketcher.Constraint("Tangent", 23, 1, 24, 1))
sketch10.addConstraint(Sketcher.Constraint("Tangent", 24, 2, 25, 1))
sketch10.addConstraint(Sketcher.Constraint("Tangent", 25, 2, 26, 1))
sketch10.addConstraint(Sketcher.Constraint("Tangent", 26, 2, 27, 1))
sketch10.addConstraint(Sketcher.Constraint("Tangent", 27, 2, 28, 1))
sketch10.addConstraint(Sketcher.Constraint("Tangent", 28, 2, 29, 2))
sketch10.addConstraint(Sketcher.Constraint("Tangent", 29, 1, 30, 1))
sketch10.addConstraint(Sketcher.Constraint("Tangent", 30, 2, 31, 1))
sketch10.addConstraint(Sketcher.Constraint("Tangent", 31, 2, 32, 1))
sketch10.addConstraint(Sketcher.Constraint("Tangent", 32, 2, 33, 1))
sketch10.addConstraint(Sketcher.Constraint("Tangent", 33, 2, 34, 1))
sketch10.addConstraint(Sketcher.Constraint("Tangent", 34, 2, 35, 2))
sketch10.addConstraint(Sketcher.Constraint("Tangent", 35, 1, 0, 1))
sketch10.addConstraint(Sketcher.Constraint("Vertical", 12))
sketch10.addConstraint(Sketcher.Constraint("Horizontal", 14))
sketch10.addConstraint(Sketcher.Constraint("Vertical", 16))
sketch10.addConstraint(Sketcher.Constraint("Vertical", 30))
sketch10.addConstraint(Sketcher.Constraint("Horizontal", 32))
sketch10.addConstraint(Sketcher.Constraint("Vertical", 34))
sketch10.addConstraint(Sketcher.Constraint("Coincident", 36, 3, -1, 1))
sketch10.addConstraint(Sketcher.Constraint("Equal", 1, 3))
sketch10.addConstraint(Sketcher.Constraint("Equal", 3, 7))
sketch10.addConstraint(Sketcher.Constraint("Equal", 7, 9))
sketch10.addConstraint(Sketcher.Constraint("Equal", 5, 11))
sketch10.addConstraint(Sketcher.Constraint("Equal", 9, 13))
sketch10.addConstraint(Sketcher.Constraint("Equal", 13, 15))
sketch10.addConstraint(Sketcher.Constraint("Equal", 11, 17))
sketch10.addConstraint(Sketcher.Constraint("Equal", 15, 19))
sketch10.addConstraint(Sketcher.Constraint("Equal", 19, 21))
sketch10.addConstraint(Sketcher.Constraint("Equal", 17, 23))
sketch10.addConstraint(Sketcher.Constraint("Equal", 21, 25))
sketch10.addConstraint(Sketcher.Constraint("Equal", 25, 27))
sketch10.addConstraint(Sketcher.Constraint("Equal", 23, 29))
sketch10.addConstraint(Sketcher.Constraint("Equal", 27, 31))
sketch10.addConstraint(Sketcher.Constraint("Equal", 31, 33))
sketch10.addConstraint(Sketcher.Constraint("Equal", 29, 35))
sketch10.addConstraint(Sketcher.Constraint("Symmetric", 1, 3, 19, 3, -1, 1))
sketch10.addConstraint(Sketcher.Constraint("Symmetric", 3, 3, 21, 3, -1, 1))
sketch10.addConstraint(Sketcher.Constraint("Symmetric", 5, 3, 23, 3, -1, 1))
sketch10.addConstraint(Sketcher.Constraint("Symmetric", 7, 3, 25, 3, -1, 1))
sketch10.addConstraint(Sketcher.Constraint("Symmetric", 9, 3, 27, 3, -1, 1))
sketch10.addConstraint(Sketcher.Constraint("Symmetric", 11, 3, 29, 3, -1, 1))
sketch10.addConstraint(Sketcher.Constraint("Symmetric", 15, 3, 33, 3, -1, 1))
sketch10.addConstraint(Sketcher.Constraint("Symmetric", 11, 3, 17, 3, -2))
sketch10.addConstraint(Sketcher.Constraint("Symmetric", 9, 3, 19, 3, -2))
sketch10.addConstraint(Sketcher.Constraint("Symmetric", 7, 3, 21, 3, -2))
sketch10.addConstraint(Sketcher.Constraint("PointOnObject", 5, 3, -1))
sketch10.addConstraint(Sketcher.Constraint("Perpendicular", 0, 2))
sketch10.addConstraint(Sketcher.Constraint("Perpendicular", 2, 4))
sketch10.addConstraint(Sketcher.Constraint("Perpendicular", 8, 10))
sketch10.addConstraint(Sketcher.Constraint("Equal", 0, 4))
sketch10.addConstraint(Sketcher.Constraint("Diameter", 36, 3.0))
sketch10.addConstraint(Sketcher.Constraint("Radius", 5, 1.0))
sketch10.addConstraint(Sketcher.Constraint("Radius", 1, 0.7))
sketch10.addConstraint(Sketcher.Constraint("Angle", 0, Q("150 deg")))
sketch10.addConstraint(Sketcher.Constraint("DistanceX", 14, 1, 14, 2, 5.6))
sketch10.addConstraint(Sketcher.Constraint("DistanceX", 5, 3, -1, 1, 9.0))
sketch10.addConstraint(Sketcher.Constraint("DistanceY", 6, 2, 3, 2, 2.3))
sketch10.addConstraint(Sketcher.Constraint("DistanceY", 0, 2, 33, 3, 1.15))
pad8 = body.newObject("PartDesign::Pad", "Pad007")
pad8.Profile = sketch10
pad8.Length = 0.5

doc.recompute()
